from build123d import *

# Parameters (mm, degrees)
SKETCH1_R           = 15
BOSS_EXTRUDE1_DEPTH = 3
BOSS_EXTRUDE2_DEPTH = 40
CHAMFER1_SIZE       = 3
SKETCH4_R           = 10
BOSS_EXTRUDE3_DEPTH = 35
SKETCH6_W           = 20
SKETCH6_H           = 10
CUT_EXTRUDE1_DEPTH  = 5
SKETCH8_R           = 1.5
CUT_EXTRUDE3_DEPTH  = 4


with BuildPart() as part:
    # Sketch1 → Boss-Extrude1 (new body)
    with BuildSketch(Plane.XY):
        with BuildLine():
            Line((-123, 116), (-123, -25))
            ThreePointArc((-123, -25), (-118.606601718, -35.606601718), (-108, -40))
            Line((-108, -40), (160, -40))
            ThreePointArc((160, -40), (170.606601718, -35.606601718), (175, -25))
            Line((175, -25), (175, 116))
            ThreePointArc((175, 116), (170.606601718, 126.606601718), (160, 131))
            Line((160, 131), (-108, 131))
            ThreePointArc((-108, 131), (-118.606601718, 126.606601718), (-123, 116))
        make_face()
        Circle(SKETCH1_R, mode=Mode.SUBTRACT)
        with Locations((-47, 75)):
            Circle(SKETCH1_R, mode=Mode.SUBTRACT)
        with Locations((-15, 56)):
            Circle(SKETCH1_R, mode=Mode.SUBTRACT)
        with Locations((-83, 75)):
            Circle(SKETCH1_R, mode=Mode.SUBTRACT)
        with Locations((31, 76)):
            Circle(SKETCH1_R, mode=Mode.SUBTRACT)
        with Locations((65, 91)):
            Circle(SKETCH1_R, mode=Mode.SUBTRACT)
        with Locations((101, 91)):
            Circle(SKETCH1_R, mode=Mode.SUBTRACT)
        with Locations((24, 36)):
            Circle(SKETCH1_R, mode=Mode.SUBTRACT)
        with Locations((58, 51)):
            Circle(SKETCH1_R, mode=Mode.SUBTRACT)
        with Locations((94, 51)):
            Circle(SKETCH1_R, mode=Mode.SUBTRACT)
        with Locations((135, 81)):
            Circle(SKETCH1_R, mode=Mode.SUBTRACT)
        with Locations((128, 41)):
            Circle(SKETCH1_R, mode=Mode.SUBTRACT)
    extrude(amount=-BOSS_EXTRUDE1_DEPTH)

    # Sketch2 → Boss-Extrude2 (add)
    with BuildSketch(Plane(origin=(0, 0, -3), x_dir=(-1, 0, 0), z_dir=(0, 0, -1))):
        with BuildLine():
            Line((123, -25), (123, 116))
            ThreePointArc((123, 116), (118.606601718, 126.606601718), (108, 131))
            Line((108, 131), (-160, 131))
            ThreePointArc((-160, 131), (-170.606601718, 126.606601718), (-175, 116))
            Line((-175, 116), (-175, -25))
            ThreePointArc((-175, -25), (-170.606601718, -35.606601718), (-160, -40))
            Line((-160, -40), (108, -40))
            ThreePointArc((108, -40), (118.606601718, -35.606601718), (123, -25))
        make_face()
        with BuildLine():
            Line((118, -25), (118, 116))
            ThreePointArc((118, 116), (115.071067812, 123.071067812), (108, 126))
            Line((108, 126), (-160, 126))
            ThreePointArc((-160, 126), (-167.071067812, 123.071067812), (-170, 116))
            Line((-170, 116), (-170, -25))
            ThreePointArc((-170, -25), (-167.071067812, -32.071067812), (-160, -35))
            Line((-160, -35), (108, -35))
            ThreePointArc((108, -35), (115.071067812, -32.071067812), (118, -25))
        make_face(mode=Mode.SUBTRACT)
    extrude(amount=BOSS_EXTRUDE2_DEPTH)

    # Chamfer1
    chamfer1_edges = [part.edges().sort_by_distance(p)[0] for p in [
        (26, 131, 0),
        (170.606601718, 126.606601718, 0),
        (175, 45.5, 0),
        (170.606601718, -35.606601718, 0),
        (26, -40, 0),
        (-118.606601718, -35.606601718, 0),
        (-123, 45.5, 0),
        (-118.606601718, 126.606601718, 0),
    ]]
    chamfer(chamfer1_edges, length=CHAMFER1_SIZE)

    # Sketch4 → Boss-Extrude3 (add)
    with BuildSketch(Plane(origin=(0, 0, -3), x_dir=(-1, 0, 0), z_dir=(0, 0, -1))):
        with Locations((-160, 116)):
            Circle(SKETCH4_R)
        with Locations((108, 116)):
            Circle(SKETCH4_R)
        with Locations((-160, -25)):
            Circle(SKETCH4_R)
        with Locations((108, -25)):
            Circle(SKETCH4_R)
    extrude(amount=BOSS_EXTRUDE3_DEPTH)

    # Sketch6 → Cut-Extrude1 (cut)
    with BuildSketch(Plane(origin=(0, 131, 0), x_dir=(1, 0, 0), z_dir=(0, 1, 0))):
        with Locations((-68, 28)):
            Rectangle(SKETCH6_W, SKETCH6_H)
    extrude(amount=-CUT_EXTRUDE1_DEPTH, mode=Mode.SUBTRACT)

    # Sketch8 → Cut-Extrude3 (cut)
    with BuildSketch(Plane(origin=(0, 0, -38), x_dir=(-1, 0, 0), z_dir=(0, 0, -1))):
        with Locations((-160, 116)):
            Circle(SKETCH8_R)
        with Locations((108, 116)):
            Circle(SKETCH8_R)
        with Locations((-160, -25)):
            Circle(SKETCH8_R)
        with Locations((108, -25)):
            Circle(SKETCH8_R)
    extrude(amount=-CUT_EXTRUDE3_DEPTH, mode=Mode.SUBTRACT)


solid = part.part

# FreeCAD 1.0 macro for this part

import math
import FreeCAD as App
import Part
import Sketcher
Q = App.Units.Quantity


def edges_at(feature, points):
    """Names of the edges that pass closest to the given points."""
    edges = feature.Shape.Edges
    near = lambda p: min(range(len(edges)), key=lambda i: edges[i].distToShape(Part.Vertex(*p))[0])
    return sorted({f"Edge{near(p) + 1}" for p in points})


def add_polygon(sketch, points):
    """Adds a closed chain of lines whose ends are joined by coincident constraints."""
    first, n = sketch.GeometryCount, len(points)
    for a, b in zip(points, points[1:] + points[:1]):
        sketch.addGeometry(Part.LineSegment(App.Vector(*a, 0), App.Vector(*b, 0)), False)
    for i in range(n):
        sketch.addConstraint(Sketcher.Constraint("Coincident", first + i, 2, first + (i + 1) % n, 1))

doc = App.newDocument("Part")
params = doc.addObject("Spreadsheet::Sheet", "Params")
for row, (alias, value) in enumerate([
    ("sketch1_diameter", "30 mm"),
    ("sketch1_width", "268 mm"),
    ("sketch1_height", "141 mm"),
    ("pad1_length", "3 mm"),
    ("sketch2_radius", "15 mm"),
    ("sketch2_radius2", "10 mm"),
    ("sketch2_width", "268 mm"),
    ("sketch2_height", "141 mm"),
    ("pad2_length", "40 mm"),
    ("chamfer_size", "3 mm"),
    ("sketch3_diameter", "20 mm"),
    ("pad3_length", "35 mm"),
    ("sketch4_width", "20 mm"),
    ("sketch4_height", "10 mm"),
    ("pocket1_length", "5 mm"),
    ("sketch5_diameter", "3 mm"),
    ("pocket2_length", "4 mm"),
], start=1):
    params.set(f"A{row}", alias)
    params.set(f"B{row}", "=" + value)
    params.setAlias(f"B{row}", alias)

body = doc.addObject("PartDesign::Body", "Body")

# Sketch on XY plane
sketch1 = body.newObject("Sketcher::SketchObject", "Sketch")
sketch1.AttachmentSupport = (doc.getObject("XY_Plane"), [""])
sketch1.MapMode = "FlatFace"
sketch1.addGeometry([
    Part.LineSegment(App.Vector(-123, 116, 0), App.Vector(-123, -25, 0)),  # 0
    Part.ArcOfCircle(Part.Circle(App.Vector(-108, -25, 0), App.Vector(0, 0, 1), 15), math.radians(180), math.radians(270)),  # 1
    Part.LineSegment(App.Vector(-108, -40, 0), App.Vector(160, -40, 0)),  # 2
    Part.ArcOfCircle(Part.Circle(App.Vector(160, -25, 0), App.Vector(0, 0, 1), 15), math.radians(-90), math.radians(0)),  # 3
    Part.LineSegment(App.Vector(175, -25, 0), App.Vector(175, 116, 0)),  # 4
    Part.ArcOfCircle(Part.Circle(App.Vector(160, 116, 0), App.Vector(0, 0, 1), 15), math.radians(0), math.radians(90)),  # 5
    Part.LineSegment(App.Vector(160, 131, 0), App.Vector(-108, 131, 0)),  # 6
    Part.ArcOfCircle(Part.Circle(App.Vector(-108, 116, 0), App.Vector(0, 0, 1), 15), math.radians(90), math.radians(180)),  # 7
    Part.Circle(App.Vector(0, 0, 0), App.Vector(0, 0, 1), 15),  # 8
    Part.Circle(App.Vector(24, 36, 0), App.Vector(0, 0, 1), 15),  # 9
    Part.Circle(App.Vector(128, 41, 0), App.Vector(0, 0, 1), 15),  # 10
    Part.Circle(App.Vector(-83, 75, 0), App.Vector(0, 0, 1), 15),  # 11
    Part.Circle(App.Vector(-47, 75, 0), App.Vector(0, 0, 1), 15),  # 12
    Part.Circle(App.Vector(-15, 56, 0), App.Vector(0, 0, 1), 15),  # 13
    Part.Circle(App.Vector(58, 51, 0), App.Vector(0, 0, 1), 15),  # 14
    Part.Circle(App.Vector(94, 51, 0), App.Vector(0, 0, 1), 15),  # 15
    Part.Circle(App.Vector(31, 76, 0), App.Vector(0, 0, 1), 15),  # 16
    Part.Circle(App.Vector(65, 91, 0), App.Vector(0, 0, 1), 15),  # 17
    Part.Circle(App.Vector(135, 81, 0), App.Vector(0, 0, 1), 15),  # 18
    Part.Circle(App.Vector(101, 91, 0), App.Vector(0, 0, 1), 15),  # 19
], False)
sketch1.addConstraint([
    Sketcher.Constraint("Tangent", 0, 2, 1, 1),
    Sketcher.Constraint("Tangent", 1, 2, 2, 1),
    Sketcher.Constraint("Tangent", 2, 2, 3, 1),
    Sketcher.Constraint("Tangent", 3, 2, 4, 1),
    Sketcher.Constraint("Tangent", 4, 2, 5, 1),
    Sketcher.Constraint("Tangent", 5, 2, 6, 1),
    Sketcher.Constraint("Tangent", 6, 2, 7, 1),
    Sketcher.Constraint("Tangent", 7, 2, 0, 1),
    Sketcher.Constraint("Vertical", 0),
    Sketcher.Constraint("Horizontal", 2),
    Sketcher.Constraint("Vertical", 4),
    Sketcher.Constraint("Horizontal", 6),
    Sketcher.Constraint("Coincident", 8, 3, -1, 1),
    Sketcher.Constraint("Equal", 1, 3),
    Sketcher.Constraint("Equal", 3, 5),
    Sketcher.Constraint("Equal", 5, 7),
    Sketcher.Constraint("Equal", 7, 8),
    Sketcher.Constraint("Equal", 8, 9),
    Sketcher.Constraint("Equal", 9, 10),
    Sketcher.Constraint("Equal", 10, 11),
    Sketcher.Constraint("Equal", 11, 12),
    Sketcher.Constraint("Equal", 12, 13),
    Sketcher.Constraint("Equal", 13, 14),
    Sketcher.Constraint("Equal", 14, 15),
    Sketcher.Constraint("Equal", 15, 16),
    Sketcher.Constraint("Equal", 16, 17),
    Sketcher.Constraint("Equal", 17, 18),
    Sketcher.Constraint("Equal", 18, 19),
    Sketcher.Constraint("Horizontal", 11, 3, 12, 3),
    Sketcher.Constraint("Horizontal", 14, 3, 15, 3),
    Sketcher.Constraint("Horizontal", 17, 3, 19, 3),
    Sketcher.Constraint("Diameter", 8, Q("30 mm")),
    Sketcher.Constraint("DistanceX", 2, 1, 2, 2, Q("268 mm")),
    Sketcher.Constraint("DistanceY", 0, 2, 0, 1, Q("141 mm")),
    Sketcher.Constraint("DistanceX", 1, 3, -1, 1, Q("108 mm")),
    Sketcher.Constraint("DistanceY", 1, 3, -1, 1, Q("25 mm")),
    Sketcher.Constraint("DistanceX", -1, 1, 9, 3, Q("24 mm")),
    Sketcher.Constraint("DistanceY", -1, 1, 9, 3, Q("36 mm")),
    Sketcher.Constraint("DistanceX", -1, 1, 10, 3, Q("128 mm")),
    Sketcher.Constraint("DistanceY", -1, 1, 10, 3, Q("41 mm")),
    Sketcher.Constraint("DistanceX", 11, 3, -1, 1, Q("83 mm")),
    Sketcher.Constraint("DistanceY", -1, 1, 11, 3, Q("75 mm")),
    Sketcher.Constraint("DistanceX", 12, 3, -1, 1, Q("47 mm")),
    Sketcher.Constraint("DistanceX", 13, 3, -1, 1, Q("15 mm")),
    Sketcher.Constraint("DistanceY", -1, 1, 13, 3, Q("56 mm")),
    Sketcher.Constraint("DistanceX", -1, 1, 14, 3, Q("58 mm")),
    Sketcher.Constraint("DistanceY", -1, 1, 14, 3, Q("51 mm")),
    Sketcher.Constraint("DistanceX", -1, 1, 15, 3, Q("94 mm")),
    Sketcher.Constraint("DistanceX", -1, 1, 16, 3, Q("31 mm")),
    Sketcher.Constraint("DistanceY", -1, 1, 16, 3, Q("76 mm")),
    Sketcher.Constraint("DistanceX", -1, 1, 17, 3, Q("65 mm")),
    Sketcher.Constraint("DistanceY", -1, 1, 17, 3, Q("91 mm")),
    Sketcher.Constraint("DistanceX", -1, 1, 18, 3, Q("135 mm")),
    Sketcher.Constraint("DistanceY", -1, 1, 18, 3, Q("81 mm")),
    Sketcher.Constraint("DistanceX", -1, 1, 19, 3, Q("101 mm")),
])
sketch1.setExpression("Constraints[31]", "Params.sketch1_diameter")
sketch1.setExpression("Constraints[32]", "Params.sketch1_width")
sketch1.setExpression("Constraints[33]", "Params.sketch1_height")
pad1 = body.newObject("PartDesign::Pad", "Pad")
pad1.Profile = sketch1
pad1.setExpression("Length", "Params.pad1_length")
pad1.Reversed = True

# Sketch on XY plane
sketch2 = body.newObject("Sketcher::SketchObject", "Sketch001")
sketch2.AttachmentSupport = (doc.getObject("XY_Plane"), [""])
sketch2.MapMode = "FlatFace"
sketch2.AttachmentOffset = App.Placement(App.Vector(0, 0, -3), App.Rotation())
sketch2.addGeometry([
    Part.LineSegment(App.Vector(-123, -25, 0), App.Vector(-123, 116, 0)),  # 0
    Part.ArcOfCircle(Part.Circle(App.Vector(-108, 116, 0), App.Vector(0, 0, 1), 15), math.radians(90), math.radians(180)),  # 1
    Part.LineSegment(App.Vector(-108, 131, 0), App.Vector(160, 131, 0)),  # 2
    Part.ArcOfCircle(Part.Circle(App.Vector(160, 116, 0), App.Vector(0, 0, 1), 15), math.radians(0), math.radians(90)),  # 3
    Part.LineSegment(App.Vector(175, 116, 0), App.Vector(175, -25, 0)),  # 4
    Part.ArcOfCircle(Part.Circle(App.Vector(160, -25, 0), App.Vector(0, 0, 1), 15), math.radians(-90), math.radians(0)),  # 5
    Part.LineSegment(App.Vector(160, -40, 0), App.Vector(-108, -40, 0)),  # 6
    Part.ArcOfCircle(Part.Circle(App.Vector(-108, -25, 0), App.Vector(0, 0, 1), 15), math.radians(180), math.radians(270)),  # 7
    Part.LineSegment(App.Vector(-118, 116, 0), App.Vector(-118, -25, 0)),  # 8
    Part.ArcOfCircle(Part.Circle(App.Vector(-108, -25, 0), App.Vector(0, 0, 1), 10), math.radians(180), math.radians(270)),  # 9
    Part.LineSegment(App.Vector(-108, -35, 0), App.Vector(160, -35, 0)),  # 10
    Part.ArcOfCircle(Part.Circle(App.Vector(160, -25, 0), App.Vector(0, 0, 1), 10), math.radians(-90), math.radians(0)),  # 11
    Part.LineSegment(App.Vector(170, -25, 0), App.Vector(170, 116, 0)),  # 12
    Part.ArcOfCircle(Part.Circle(App.Vector(160, 116, 0), App.Vector(0, 0, 1), 10), math.radians(0), math.radians(90)),  # 13
    Part.LineSegment(App.Vector(160, 126, 0), App.Vector(-108, 126, 0)),  # 14
    Part.ArcOfCircle(Part.Circle(App.Vector(-108, 116, 0), App.Vector(0, 0, 1), 10), math.radians(90), math.radians(180)),  # 15
], False)
sketch2.addConstraint([
    Sketcher.Constraint("Tangent", 0, 2, 1, 2),
    Sketcher.Constraint("Tangent", 1, 1, 2, 1),
    Sketcher.Constraint("Tangent", 2, 2, 3, 2),
    Sketcher.Constraint("Tangent", 3, 1, 4, 1),
    Sketcher.Constraint("Tangent", 4, 2, 5, 2),
    Sketcher.Constraint("Tangent", 5, 1, 6, 1),
    Sketcher.Constraint("Tangent", 6, 2, 7, 2),
    Sketcher.Constraint("Tangent", 7, 1, 0, 1),
    Sketcher.Constraint("Tangent", 8, 2, 9, 1),
    Sketcher.Constraint("Tangent", 9, 2, 10, 1),
    Sketcher.Constraint("Tangent", 10, 2, 11, 1),
    Sketcher.Constraint("Tangent", 11, 2, 12, 1),
    Sketcher.Constraint("Tangent", 12, 2, 13, 1),
    Sketcher.Constraint("Tangent", 13, 2, 14, 1),
    Sketcher.Constraint("Tangent", 14, 2, 15, 1),
    Sketcher.Constraint("Tangent", 15, 2, 8, 1),
    Sketcher.Constraint("Vertical", 0),
    Sketcher.Constraint("Horizontal", 2),
    Sketcher.Constraint("Vertical", 4),
    Sketcher.Constraint("Horizontal", 6),
    Sketcher.Constraint("Vertical", 8),
    Sketcher.Constraint("Horizontal", 10),
    Sketcher.Constraint("Vertical", 12),
    Sketcher.Constraint("Horizontal", 14),
    Sketcher.Constraint("Coincident", 9, 3, 7, 3),
    Sketcher.Constraint("Coincident", 11, 3, 5, 3),
    Sketcher.Constraint("Coincident", 13, 3, 3, 3),
    Sketcher.Constraint("Equal", 1, 3),
    Sketcher.Constraint("Equal", 3, 5),
    Sketcher.Constraint("Equal", 5, 7),
    Sketcher.Constraint("Equal", 13, 15),
    Sketcher.Constraint("Radius", 1, Q("15 mm")),
    Sketcher.Constraint("Radius", 9, Q("10 mm")),
    Sketcher.Constraint("DistanceX", 2, 1, 2, 2, Q("268 mm")),
    Sketcher.Constraint("DistanceY", 0, 1, 0, 2, Q("141 mm")),
    Sketcher.Constraint("DistanceX", 1, 3, -1, 1, Q("108 mm")),
    Sketcher.Constraint("DistanceY", -1, 1, 1, 3, Q("116 mm")),
])
sketch2.setExpression("Constraints[31]", "Params.sketch2_radius")
sketch2.setExpression("Constraints[32]", "Params.sketch2_radius2")
sketch2.setExpression("Constraints[33]", "Params.sketch2_width")
sketch2.setExpression("Constraints[34]", "Params.sketch2_height")
pad2 = body.newObject("PartDesign::Pad", "Pad001")
pad2.Profile = sketch2
pad2.setExpression("Length", "Params.pad2_length")
pad2.Reversed = True
doc.recompute()

chamfer = body.newObject("PartDesign::Chamfer", "Chamfer")
chamfer.Base = (pad2, edges_at(pad2, [
    (26, 131, 0),
    (170.607, 126.607, 0),
    (175, 45.5, 0),
    (170.607, -35.607, 0),
    (26, -40, 0),
    (-118.607, -35.607, 0),
    (-123, 45.5, 0),
    (-118.607, 126.607, 0),
]))
chamfer.setExpression("Size", "Params.chamfer_size")

# Sketch on XY plane
sketch3 = body.newObject("Sketcher::SketchObject", "Sketch002")
sketch3.AttachmentSupport = (doc.getObject("XY_Plane"), [""])
sketch3.MapMode = "FlatFace"
sketch3.AttachmentOffset = App.Placement(App.Vector(0, 0, -3), App.Rotation())
sketch3.addGeometry([
    Part.Circle(App.Vector(160, 116, 0), App.Vector(0, 0, 1), 10),
    Part.Circle(App.Vector(-108, 116, 0), App.Vector(0, 0, 1), 10),
    Part.Circle(App.Vector(160, -25, 0), App.Vector(0, 0, 1), 10),
    Part.Circle(App.Vector(-108, -25, 0), App.Vector(0, 0, 1), 10),
], False)
sketch3.addConstraint([
    Sketcher.Constraint("Equal", 0, 1),
    Sketcher.Constraint("Equal", 1, 2),
    Sketcher.Constraint("Equal", 2, 3),
    Sketcher.Constraint("Horizontal", 0, 3, 1, 3),
    Sketcher.Constraint("Horizontal", 2, 3, 3, 3),
    Sketcher.Constraint("Vertical", 0, 3, 2, 3),
    Sketcher.Constraint("Vertical", 1, 3, 3, 3),
    Sketcher.Constraint("Diameter", 0, Q("20 mm")),
    Sketcher.Constraint("DistanceX", -1, 1, 0, 3, Q("160 mm")),
    Sketcher.Constraint("DistanceY", -1, 1, 0, 3, Q("116 mm")),
    Sketcher.Constraint("DistanceX", 1, 3, -1, 1, Q("108 mm")),
    Sketcher.Constraint("DistanceY", 2, 3, -1, 1, Q("25 mm")),
])
sketch3.setExpression("Constraints[7]", "Params.sketch3_diameter")
pad3 = body.newObject("PartDesign::Pad", "Pad002")
pad3.Profile = sketch3
pad3.setExpression("Length", "Params.pad3_length")
pad3.Reversed = True

# Sketch on XZ plane
sketch4 = body.newObject("Sketcher::SketchObject", "Sketch003")
sketch4.AttachmentSupport = (doc.getObject("XZ_Plane"), [""])
sketch4.MapMode = "FlatFace"
sketch4.AttachmentOffset = App.Placement(App.Vector(0, 0, -131), App.Rotation())
add_polygon(sketch4, [(-78, -33), (-78, -23), (-58, -23), (-58, -33)])  # lines 0-3
sketch4.addConstraint([
    Sketcher.Constraint("Vertical", 0),
    Sketcher.Constraint("Horizontal", 1),
    Sketcher.Constraint("Vertical", 2),
    Sketcher.Constraint("Horizontal", 3),
    Sketcher.Constraint("DistanceX", 1, 1, 1, 2, Q("20 mm")),
    Sketcher.Constraint("DistanceY", 0, 1, 0, 2, Q("10 mm")),
    Sketcher.Constraint("DistanceX", 0, 2, -1, 1, Q("78 mm")),
    Sketcher.Constraint("DistanceY", 0, 2, -1, 1, Q("23 mm")),
])
sketch4.setExpression("Constraints[8]", "Params.sketch4_width")
sketch4.setExpression("Constraints[9]", "Params.sketch4_height")
pocket1 = body.newObject("PartDesign::Pocket", "Pocket")
pocket1.Profile = sketch4
pocket1.setExpression("Length", "Params.pocket1_length")
pocket1.Reversed = True

# Sketch on XY plane
sketch5 = body.newObject("Sketcher::SketchObject", "Sketch004")
sketch5.AttachmentSupport = (doc.getObject("XY_Plane"), [""])
sketch5.MapMode = "FlatFace"
sketch5.AttachmentOffset = App.Placement(App.Vector(0, 0, -38), App.Rotation())
sketch5.addGeometry([
    Part.Circle(App.Vector(160, 116, 0), App.Vector(0, 0, 1), 1.5),
    Part.Circle(App.Vector(-108, 116, 0), App.Vector(0, 0, 1), 1.5),
    Part.Circle(App.Vector(160, -25, 0), App.Vector(0, 0, 1), 1.5),
    Part.Circle(App.Vector(-108, -25, 0), App.Vector(0, 0, 1), 1.5),
], False)
sketch5.addConstraint([
    Sketcher.Constraint("Equal", 0, 1),
    Sketcher.Constraint("Equal", 1, 2),
    Sketcher.Constraint("Equal", 2, 3),
    Sketcher.Constraint("Horizontal", 0, 3, 1, 3),
    Sketcher.Constraint("Horizontal", 2, 3, 3, 3),
    Sketcher.Constraint("Vertical", 0, 3, 2, 3),
    Sketcher.Constraint("Vertical", 1, 3, 3, 3),
    Sketcher.Constraint("Diameter", 0, Q("3 mm")),
    Sketcher.Constraint("DistanceX", -1, 1, 0, 3, Q("160 mm")),
    Sketcher.Constraint("DistanceY", -1, 1, 0, 3, Q("116 mm")),
    Sketcher.Constraint("DistanceX", 1, 3, -1, 1, Q("108 mm")),
    Sketcher.Constraint("DistanceY", 2, 3, -1, 1, Q("25 mm")),
])
sketch5.setExpression("Constraints[7]", "Params.sketch5_diameter")
pocket2 = body.newObject("PartDesign::Pocket", "Pocket001")
pocket2.Profile = sketch5
pocket2.setExpression("Length", "Params.pocket2_length")
pocket2.Reversed = True

doc.recompute()
